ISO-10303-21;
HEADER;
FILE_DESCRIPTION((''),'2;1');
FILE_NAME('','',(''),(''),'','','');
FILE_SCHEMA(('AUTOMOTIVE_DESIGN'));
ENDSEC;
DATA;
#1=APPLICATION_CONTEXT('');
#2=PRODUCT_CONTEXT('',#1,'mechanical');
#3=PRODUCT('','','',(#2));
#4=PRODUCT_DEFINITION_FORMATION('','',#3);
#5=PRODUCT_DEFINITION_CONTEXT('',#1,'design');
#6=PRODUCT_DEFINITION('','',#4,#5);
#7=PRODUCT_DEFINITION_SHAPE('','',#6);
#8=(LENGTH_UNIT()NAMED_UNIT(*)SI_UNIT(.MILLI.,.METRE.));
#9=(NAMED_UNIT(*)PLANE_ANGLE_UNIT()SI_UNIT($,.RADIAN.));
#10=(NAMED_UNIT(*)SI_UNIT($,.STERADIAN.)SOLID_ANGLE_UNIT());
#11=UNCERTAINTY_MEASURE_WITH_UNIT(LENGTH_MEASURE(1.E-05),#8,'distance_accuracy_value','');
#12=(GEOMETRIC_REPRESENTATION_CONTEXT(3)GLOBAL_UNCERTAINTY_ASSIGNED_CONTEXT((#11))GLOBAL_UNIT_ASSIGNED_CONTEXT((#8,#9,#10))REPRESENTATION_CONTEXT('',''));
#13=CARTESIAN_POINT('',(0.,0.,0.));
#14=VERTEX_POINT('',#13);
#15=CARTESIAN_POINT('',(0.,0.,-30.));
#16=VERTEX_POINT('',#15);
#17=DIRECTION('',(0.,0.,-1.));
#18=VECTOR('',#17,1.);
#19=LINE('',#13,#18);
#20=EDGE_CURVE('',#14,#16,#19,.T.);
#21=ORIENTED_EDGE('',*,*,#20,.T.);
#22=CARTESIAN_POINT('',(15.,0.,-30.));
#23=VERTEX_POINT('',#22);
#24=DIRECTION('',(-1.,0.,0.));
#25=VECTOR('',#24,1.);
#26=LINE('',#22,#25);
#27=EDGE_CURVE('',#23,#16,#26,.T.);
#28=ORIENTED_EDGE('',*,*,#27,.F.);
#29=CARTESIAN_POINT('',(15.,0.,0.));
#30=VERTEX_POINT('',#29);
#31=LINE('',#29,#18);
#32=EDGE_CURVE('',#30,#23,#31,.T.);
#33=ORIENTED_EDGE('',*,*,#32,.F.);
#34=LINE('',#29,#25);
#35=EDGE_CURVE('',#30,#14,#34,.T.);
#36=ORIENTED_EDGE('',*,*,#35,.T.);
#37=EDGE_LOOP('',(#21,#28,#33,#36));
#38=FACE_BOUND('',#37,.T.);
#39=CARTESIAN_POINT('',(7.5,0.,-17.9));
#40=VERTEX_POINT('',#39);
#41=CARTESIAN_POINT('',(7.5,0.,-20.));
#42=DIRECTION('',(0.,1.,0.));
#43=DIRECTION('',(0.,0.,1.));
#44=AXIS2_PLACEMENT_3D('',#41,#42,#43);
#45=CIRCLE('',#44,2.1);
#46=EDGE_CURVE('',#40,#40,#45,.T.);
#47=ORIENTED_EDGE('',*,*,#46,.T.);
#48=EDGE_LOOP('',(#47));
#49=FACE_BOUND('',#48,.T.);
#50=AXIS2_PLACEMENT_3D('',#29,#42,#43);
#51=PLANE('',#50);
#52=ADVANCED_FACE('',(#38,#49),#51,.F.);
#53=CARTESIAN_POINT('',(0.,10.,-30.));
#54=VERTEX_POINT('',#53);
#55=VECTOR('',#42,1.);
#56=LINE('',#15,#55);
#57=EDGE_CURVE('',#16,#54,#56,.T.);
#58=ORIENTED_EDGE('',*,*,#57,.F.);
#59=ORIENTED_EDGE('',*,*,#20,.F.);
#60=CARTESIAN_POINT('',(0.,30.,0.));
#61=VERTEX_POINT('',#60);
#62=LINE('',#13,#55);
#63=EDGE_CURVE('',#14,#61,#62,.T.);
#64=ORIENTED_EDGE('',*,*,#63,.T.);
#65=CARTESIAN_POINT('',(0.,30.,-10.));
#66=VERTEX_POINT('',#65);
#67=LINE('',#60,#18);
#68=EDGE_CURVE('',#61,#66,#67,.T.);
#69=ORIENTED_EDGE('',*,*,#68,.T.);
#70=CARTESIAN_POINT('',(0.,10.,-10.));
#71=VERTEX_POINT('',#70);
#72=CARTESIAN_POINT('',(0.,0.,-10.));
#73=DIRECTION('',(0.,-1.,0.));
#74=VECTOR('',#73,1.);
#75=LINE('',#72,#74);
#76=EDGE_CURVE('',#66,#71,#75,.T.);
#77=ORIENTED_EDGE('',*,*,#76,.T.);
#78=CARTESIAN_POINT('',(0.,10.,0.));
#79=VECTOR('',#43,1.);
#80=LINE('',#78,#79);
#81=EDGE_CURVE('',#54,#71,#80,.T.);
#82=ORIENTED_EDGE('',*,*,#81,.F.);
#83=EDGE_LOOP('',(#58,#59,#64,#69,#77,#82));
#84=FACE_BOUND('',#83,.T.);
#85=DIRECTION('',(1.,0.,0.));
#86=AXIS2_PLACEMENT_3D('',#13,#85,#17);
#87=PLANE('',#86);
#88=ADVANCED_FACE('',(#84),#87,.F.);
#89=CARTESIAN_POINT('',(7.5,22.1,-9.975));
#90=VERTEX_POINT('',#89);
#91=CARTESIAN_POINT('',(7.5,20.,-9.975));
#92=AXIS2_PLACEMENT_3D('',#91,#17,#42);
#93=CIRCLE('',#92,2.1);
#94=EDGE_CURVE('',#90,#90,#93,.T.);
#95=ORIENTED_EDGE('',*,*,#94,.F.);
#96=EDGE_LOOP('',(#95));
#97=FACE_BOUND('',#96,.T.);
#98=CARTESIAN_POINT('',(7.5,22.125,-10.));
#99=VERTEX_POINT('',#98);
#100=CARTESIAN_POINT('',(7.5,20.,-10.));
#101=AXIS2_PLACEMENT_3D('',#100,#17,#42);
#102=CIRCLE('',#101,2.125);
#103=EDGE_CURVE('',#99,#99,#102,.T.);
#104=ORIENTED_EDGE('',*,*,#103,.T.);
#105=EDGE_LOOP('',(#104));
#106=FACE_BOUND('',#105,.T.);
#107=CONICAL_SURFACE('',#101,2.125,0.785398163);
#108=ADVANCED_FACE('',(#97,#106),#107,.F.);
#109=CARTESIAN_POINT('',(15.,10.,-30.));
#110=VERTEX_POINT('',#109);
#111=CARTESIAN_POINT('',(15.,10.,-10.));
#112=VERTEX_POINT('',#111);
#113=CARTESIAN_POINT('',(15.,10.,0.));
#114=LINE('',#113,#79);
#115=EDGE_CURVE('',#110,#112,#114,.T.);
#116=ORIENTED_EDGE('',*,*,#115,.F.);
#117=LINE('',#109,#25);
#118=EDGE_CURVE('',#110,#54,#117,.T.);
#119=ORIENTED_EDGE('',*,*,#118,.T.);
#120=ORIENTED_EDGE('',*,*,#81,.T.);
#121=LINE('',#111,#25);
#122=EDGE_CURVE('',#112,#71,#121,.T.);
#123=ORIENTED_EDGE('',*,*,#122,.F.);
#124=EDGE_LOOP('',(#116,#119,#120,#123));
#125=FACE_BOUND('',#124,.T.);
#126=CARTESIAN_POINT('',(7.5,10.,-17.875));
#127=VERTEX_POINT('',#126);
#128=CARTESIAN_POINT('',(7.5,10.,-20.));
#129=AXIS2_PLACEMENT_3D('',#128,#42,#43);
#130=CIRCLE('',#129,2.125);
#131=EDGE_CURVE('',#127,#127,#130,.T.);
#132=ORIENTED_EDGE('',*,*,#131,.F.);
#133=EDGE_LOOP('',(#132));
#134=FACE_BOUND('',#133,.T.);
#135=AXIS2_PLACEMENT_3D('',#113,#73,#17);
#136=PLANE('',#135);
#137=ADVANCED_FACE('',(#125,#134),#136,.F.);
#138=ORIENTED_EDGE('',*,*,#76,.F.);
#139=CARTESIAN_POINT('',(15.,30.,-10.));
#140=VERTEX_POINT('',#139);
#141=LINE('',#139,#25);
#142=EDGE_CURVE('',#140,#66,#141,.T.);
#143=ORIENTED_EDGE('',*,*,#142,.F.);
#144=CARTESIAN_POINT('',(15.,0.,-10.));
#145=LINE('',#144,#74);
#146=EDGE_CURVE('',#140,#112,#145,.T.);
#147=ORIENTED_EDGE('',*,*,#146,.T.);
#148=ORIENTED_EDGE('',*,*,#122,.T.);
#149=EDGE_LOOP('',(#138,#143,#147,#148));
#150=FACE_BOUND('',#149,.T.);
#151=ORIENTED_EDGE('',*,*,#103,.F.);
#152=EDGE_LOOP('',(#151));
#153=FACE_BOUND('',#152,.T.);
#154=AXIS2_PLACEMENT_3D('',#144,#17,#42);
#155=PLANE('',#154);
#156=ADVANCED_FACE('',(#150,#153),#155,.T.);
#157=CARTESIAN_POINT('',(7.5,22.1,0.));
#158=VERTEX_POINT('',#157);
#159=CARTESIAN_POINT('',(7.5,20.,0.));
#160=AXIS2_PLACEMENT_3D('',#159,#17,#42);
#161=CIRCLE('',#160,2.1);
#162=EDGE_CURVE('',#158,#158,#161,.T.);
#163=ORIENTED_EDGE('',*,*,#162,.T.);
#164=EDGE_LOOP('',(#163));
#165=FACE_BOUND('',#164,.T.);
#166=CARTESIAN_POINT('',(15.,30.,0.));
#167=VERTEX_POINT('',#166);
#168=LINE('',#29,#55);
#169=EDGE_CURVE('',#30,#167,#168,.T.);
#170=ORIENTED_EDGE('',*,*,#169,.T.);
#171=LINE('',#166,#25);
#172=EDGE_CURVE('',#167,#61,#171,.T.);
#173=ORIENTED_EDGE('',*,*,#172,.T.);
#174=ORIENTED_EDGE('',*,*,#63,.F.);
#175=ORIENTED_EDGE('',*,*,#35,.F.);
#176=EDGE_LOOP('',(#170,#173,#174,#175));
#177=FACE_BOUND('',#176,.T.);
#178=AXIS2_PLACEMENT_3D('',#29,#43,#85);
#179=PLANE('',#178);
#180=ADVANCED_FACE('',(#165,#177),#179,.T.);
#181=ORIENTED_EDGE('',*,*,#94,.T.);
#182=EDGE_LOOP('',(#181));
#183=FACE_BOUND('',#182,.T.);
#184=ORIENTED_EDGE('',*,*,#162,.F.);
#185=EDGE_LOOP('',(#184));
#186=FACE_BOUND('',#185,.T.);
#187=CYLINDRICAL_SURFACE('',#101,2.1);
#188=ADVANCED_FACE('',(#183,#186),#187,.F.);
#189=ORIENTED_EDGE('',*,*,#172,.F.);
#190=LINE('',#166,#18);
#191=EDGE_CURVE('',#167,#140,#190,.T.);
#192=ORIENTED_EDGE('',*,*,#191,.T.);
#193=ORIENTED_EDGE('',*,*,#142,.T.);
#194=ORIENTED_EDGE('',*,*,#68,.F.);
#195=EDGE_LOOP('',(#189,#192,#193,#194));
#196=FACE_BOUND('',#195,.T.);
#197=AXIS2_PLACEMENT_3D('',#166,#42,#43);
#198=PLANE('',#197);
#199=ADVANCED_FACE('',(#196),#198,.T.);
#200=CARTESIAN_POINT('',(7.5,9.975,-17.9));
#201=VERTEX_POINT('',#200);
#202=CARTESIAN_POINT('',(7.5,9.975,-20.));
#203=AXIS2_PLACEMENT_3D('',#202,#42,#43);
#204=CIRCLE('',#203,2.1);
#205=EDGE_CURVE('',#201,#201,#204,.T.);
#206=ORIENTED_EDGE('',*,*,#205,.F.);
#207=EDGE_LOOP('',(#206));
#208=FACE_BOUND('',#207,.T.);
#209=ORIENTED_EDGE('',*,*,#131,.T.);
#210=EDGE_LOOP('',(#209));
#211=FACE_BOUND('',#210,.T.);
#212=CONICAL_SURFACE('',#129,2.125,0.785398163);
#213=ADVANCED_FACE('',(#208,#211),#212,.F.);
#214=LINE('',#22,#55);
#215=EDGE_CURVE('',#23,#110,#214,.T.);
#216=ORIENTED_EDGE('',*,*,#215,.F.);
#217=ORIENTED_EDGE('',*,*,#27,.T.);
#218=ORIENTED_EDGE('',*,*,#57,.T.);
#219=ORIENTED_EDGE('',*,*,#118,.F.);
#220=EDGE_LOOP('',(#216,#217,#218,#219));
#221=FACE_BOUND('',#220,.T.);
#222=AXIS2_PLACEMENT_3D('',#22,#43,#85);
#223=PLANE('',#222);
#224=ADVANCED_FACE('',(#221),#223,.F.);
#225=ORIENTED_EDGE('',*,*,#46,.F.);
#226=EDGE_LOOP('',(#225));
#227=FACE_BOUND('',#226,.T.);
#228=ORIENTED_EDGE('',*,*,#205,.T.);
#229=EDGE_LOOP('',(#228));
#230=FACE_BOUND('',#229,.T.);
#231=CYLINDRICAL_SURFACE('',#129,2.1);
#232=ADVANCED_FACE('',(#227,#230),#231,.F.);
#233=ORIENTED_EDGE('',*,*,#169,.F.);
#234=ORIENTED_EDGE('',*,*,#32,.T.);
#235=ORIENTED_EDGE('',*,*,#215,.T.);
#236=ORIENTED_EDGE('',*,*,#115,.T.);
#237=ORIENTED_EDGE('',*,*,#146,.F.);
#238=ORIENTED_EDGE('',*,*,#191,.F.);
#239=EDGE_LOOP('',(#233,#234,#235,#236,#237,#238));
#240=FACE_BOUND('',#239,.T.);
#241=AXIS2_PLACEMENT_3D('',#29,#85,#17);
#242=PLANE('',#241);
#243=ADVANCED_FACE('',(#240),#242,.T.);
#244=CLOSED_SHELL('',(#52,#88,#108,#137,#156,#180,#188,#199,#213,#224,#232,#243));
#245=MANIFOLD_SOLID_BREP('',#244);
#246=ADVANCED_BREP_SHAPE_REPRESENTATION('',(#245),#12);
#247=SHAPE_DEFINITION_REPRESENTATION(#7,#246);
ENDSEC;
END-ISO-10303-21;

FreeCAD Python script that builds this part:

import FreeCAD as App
import Part
import Sketcher
from FreeCAD import Vector


def add_polygon(sketch, points):
    """Adds a closed chain of lines whose ends are joined by coincident constraints."""
    first, n = sketch.GeometryCount, len(points)
    for a, b in zip(points, points[1:] + points[:1]):
        sketch.addGeometry(Part.LineSegment(App.Vector(*a, 0), App.Vector(*b, 0)), False)
    for i in range(n):
        sketch.addConstraint(Sketcher.Constraint("Coincident", first + i, 2, first + (i + 1) % n, 1))

doc = App.newDocument("Part")
body = doc.addObject("PartDesign::Body", "Body")

# Sketch on YZ plane
sketch1 = body.newObject("Sketcher::SketchObject", "Sketch")
sketch1.AttachmentSupport = (doc.getObject("YZ_Plane"), [""])
sketch1.MapMode = "FlatFace"
add_polygon(sketch1, [(30, 0), (0, 0), (0, -30), (10, -30), (10, -10), (30, -10)])  # lines 0-5
sketch1.addConstraint(Sketcher.Constraint("Horizontal", 0))
sketch1.addConstraint(Sketcher.Constraint("Vertical", 1))
sketch1.addConstraint(Sketcher.Constraint("Horizontal", 2))
sketch1.addConstraint(Sketcher.Constraint("Vertical", 3))
sketch1.addConstraint(Sketcher.Constraint("Horizontal", 4))
sketch1.addConstraint(Sketcher.Constraint("Vertical", 5))
sketch1.addConstraint(Sketcher.Constraint("Coincident", 0, 2, -1, 1))
sketch1.addConstraint(Sketcher.Constraint("Equal", 0, 1))
sketch1.addConstraint(Sketcher.Constraint("Equal", 4, 3))
sketch1.addConstraint(Sketcher.Constraint("DistanceX", 0, 2, 0, 1, 30.0))
sketch1.addConstraint(Sketcher.Constraint("DistanceX", 2, 1, 2, 2, 10.0))
pad1 = body.newObject("PartDesign::Pad", "Pad")
pad1.Profile = sketch1
pad1.Length = 15

# Sketch on XZ plane
sketch2 = body.newObject("Sketcher::SketchObject", "Sketch001")
sketch2.AttachmentSupport = (doc.getObject("XZ_Plane"), [""])
sketch2.MapMode = "FlatFace"
sketch2.AttachmentOffset = App.Placement(Vector(0, 0, -10), App.Rotation())
sketch2.addGeometry(Part.Circle(Vector(7.5, -20, 0), Vector(0, 0, 1), 2.1), False)
sketch2.addConstraint(Sketcher.Constraint("Diameter", 0, 4.2))
sketch2.addConstraint(Sketcher.Constraint("DistanceY", 0, 3, -1, 1, 20.0))
sketch2.addConstraint(Sketcher.Constraint("DistanceX", -1, 1, 0, 3, 7.5))
doc.recompute()
hole = body.newObject("PartDesign::Hole", "Hole")
hole.Profile = sketch2
hole.ThreadType = "None"
hole.Diameter = 4.2
hole.DepthType = "ThroughAll"
hole.HoleCutType = "Countersink"
hole.HoleCutDiameter = 4.25
hole.HoleCutCountersinkAngle = 90
hole.Reversed = True

# Sketch on XY plane
sketch3 = body.newObject("Sketcher::SketchObject", "Sketch002")
sketch3.AttachmentSupport = (doc.getObject("XY_Plane"), [""])
sketch3.MapMode = "FlatFace"
sketch3.AttachmentOffset = App.Placement(Vector(0, 0, -10), App.Rotation())
sketch3.addGeometry(Part.Circle(Vector(7.5, 20, 0), Vector(0, 0, 1), 2.1), False)
sketch3.addConstraint(Sketcher.Constraint("Diameter", 0, 4.2))
sketch3.addConstraint(Sketcher.Constraint("DistanceY", -1, 1, 0, 3, 20.0))
sketch3.addConstraint(Sketcher.Constraint("DistanceX", -1, 1, 0, 3, 7.5))
doc.recompute()
hole2 = body.newObject("PartDesign::Hole", "Hole001")
hole2.Profile = sketch3
hole2.ThreadType = "None"
hole2.Diameter = 4.2
hole2.DepthType = "ThroughAll"
hole2.HoleCutType = "Countersink"
hole2.HoleCutDiameter = 4.25
hole2.HoleCutCountersinkAngle = 90
hole2.Reversed = True

doc.recompute()
